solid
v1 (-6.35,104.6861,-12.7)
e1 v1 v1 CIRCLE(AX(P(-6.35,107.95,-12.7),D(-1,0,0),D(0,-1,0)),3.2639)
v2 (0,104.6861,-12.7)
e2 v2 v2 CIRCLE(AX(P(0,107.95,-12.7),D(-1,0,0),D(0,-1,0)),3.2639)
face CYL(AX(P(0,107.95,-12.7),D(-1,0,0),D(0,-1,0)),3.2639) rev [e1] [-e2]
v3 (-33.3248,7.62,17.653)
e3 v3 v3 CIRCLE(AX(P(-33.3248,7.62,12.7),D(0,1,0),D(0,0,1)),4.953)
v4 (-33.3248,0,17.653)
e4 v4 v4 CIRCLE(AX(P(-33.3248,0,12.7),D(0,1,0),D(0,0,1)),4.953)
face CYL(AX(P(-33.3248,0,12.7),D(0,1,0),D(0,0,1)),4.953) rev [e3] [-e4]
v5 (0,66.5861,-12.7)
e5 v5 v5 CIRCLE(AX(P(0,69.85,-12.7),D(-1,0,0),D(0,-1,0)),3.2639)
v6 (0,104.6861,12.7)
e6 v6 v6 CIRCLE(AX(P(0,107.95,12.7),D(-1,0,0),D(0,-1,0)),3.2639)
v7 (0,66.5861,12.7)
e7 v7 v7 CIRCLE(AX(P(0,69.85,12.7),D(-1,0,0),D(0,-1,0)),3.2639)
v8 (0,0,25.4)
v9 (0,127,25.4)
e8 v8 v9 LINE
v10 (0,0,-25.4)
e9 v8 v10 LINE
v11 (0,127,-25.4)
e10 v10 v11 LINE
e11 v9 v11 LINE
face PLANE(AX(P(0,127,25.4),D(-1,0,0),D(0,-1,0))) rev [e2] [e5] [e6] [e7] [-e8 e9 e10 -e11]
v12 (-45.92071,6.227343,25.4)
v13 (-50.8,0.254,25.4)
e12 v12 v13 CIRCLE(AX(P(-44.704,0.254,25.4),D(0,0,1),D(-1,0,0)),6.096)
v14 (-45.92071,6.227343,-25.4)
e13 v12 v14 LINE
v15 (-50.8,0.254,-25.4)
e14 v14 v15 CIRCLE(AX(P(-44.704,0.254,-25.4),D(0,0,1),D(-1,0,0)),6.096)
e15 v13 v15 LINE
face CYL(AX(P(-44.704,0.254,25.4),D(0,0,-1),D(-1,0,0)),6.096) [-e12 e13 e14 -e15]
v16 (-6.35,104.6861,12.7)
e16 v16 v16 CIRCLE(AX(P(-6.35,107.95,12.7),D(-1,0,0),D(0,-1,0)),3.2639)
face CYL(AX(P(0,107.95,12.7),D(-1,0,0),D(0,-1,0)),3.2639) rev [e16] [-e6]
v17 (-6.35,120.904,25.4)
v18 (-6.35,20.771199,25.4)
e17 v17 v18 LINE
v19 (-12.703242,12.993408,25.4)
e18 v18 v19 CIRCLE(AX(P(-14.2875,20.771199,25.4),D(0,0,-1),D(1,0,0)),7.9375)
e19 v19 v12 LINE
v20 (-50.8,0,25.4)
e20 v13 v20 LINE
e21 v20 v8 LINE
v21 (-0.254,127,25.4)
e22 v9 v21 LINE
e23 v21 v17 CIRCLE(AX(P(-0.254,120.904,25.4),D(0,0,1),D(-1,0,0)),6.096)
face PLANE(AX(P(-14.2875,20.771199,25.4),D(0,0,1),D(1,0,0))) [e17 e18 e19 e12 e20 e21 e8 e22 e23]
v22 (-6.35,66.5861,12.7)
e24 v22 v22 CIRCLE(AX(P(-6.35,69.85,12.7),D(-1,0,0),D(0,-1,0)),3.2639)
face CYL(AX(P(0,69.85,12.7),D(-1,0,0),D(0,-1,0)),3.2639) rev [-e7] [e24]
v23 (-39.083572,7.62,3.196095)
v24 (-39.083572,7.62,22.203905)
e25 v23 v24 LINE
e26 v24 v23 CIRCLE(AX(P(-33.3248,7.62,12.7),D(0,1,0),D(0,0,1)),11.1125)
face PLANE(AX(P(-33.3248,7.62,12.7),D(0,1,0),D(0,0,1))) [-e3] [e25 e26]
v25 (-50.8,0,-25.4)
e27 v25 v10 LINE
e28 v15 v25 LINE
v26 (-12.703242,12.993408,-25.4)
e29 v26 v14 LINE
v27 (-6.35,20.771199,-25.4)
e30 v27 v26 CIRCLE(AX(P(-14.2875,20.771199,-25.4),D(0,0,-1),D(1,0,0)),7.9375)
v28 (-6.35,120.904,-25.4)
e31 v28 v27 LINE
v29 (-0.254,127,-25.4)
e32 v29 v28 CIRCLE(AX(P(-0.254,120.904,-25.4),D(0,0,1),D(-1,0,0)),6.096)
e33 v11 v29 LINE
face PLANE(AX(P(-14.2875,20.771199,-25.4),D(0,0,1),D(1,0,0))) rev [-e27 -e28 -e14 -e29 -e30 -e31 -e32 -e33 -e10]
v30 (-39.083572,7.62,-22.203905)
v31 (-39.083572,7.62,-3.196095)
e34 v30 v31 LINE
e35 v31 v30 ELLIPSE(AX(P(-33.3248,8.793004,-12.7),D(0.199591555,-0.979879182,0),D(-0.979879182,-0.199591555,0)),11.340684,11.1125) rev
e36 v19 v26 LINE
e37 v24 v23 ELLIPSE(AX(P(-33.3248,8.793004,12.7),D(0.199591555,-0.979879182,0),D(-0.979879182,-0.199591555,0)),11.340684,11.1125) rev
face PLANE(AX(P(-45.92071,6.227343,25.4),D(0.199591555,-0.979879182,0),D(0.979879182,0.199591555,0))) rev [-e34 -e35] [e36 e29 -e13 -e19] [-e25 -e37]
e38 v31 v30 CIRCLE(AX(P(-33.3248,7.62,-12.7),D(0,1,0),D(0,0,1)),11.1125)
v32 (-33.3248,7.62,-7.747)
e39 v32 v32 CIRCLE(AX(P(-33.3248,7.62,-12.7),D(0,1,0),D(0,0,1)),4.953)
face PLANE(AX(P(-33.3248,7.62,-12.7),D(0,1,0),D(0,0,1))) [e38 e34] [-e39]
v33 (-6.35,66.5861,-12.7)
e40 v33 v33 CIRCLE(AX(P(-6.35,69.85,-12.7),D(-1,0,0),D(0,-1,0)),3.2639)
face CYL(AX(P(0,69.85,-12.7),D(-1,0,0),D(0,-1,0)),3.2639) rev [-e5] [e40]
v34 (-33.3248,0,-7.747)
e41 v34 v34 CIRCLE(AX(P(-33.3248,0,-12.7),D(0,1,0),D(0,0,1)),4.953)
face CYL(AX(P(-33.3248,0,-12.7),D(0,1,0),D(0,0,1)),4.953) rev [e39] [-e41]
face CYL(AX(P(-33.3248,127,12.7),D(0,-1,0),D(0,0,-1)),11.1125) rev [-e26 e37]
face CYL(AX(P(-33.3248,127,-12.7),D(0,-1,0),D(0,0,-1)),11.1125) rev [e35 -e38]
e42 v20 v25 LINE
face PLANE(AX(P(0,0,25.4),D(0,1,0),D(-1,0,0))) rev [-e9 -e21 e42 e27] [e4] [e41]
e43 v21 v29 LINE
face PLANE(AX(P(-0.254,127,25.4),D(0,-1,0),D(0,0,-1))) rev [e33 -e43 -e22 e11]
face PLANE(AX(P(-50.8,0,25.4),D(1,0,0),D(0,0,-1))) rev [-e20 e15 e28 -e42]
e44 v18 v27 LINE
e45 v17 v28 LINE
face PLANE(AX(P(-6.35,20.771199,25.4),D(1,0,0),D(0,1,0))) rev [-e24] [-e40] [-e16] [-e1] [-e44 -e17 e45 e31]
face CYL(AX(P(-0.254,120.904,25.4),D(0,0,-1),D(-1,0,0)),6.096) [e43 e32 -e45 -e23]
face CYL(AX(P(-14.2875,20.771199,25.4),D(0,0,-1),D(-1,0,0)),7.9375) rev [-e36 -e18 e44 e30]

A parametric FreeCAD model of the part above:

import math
import FreeCAD as App
import Part
import Sketcher

V = App.Vector
Q = App.Units.Quantity

doc = App.newDocument("Part")
body = doc.addObject("PartDesign::Body", "Body")

sketch1 = doc.addObject("Sketcher::SketchObject", "Sketch")
body.addObject(sketch1)
sketch1.AttachmentSupport = (doc.XY_Plane, [""])
sketch1.MapMode = "FlatFace"
sketch1.addGeometry(Part.LineSegment(V(0, 0, 0), V(0, 127, 0)), False)
sketch1.addGeometry(Part.LineSegment(V(0, 127, 0), V(-0.254, 127, 0)), False)
sketch1.addGeometry(Part.ArcOfCircle(Part.Circle(V(-0.254, 120.904, 0), V(0, 0, 1), 6.096), math.radians(90), math.radians(180)), False)
sketch1.addGeometry(Part.LineSegment(V(-6.35, 120.904, 0), V(-6.35, 20.771199, 0)), False)
sketch1.addGeometry(Part.ArcOfCircle(Part.Circle(V(-14.2875, 20.771199, 0), V(0, 0, 1), 7.9375), math.radians(-78.486925), math.radians(0)), False)
sketch1.addGeometry(Part.LineSegment(V(-12.703242, 12.993408, 0), V(-45.92071, 6.227343, 0)), False)
sketch1.addGeometry(Part.ArcOfCircle(Part.Circle(V(-44.704, 0.254, 0), V(0, 0, 1), 6.096), math.radians(101.513075), math.radians(180)), False)
sketch1.addGeometry(Part.LineSegment(V(-50.8, 0.254, 0), V(-50.8, 0, 0)), False)
sketch1.addGeometry(Part.LineSegment(V(-50.8, 0, 0), V(0, 0, 0)), False)
sketch1.addConstraint(Sketcher.Constraint("Coincident", 0, 2, 1, 1))
sketch1.addConstraint(Sketcher.Constraint("Tangent", 1, 2, 2, 1))
sketch1.addConstraint(Sketcher.Constraint("Tangent", 2, 2, 3, 1))
sketch1.addConstraint(Sketcher.Constraint("Tangent", 3, 2, 4, 2))
sketch1.addConstraint(Sketcher.Constraint("Tangent", 4, 1, 5, 1))
sketch1.addConstraint(Sketcher.Constraint("Tangent", 5, 2, 6, 1))
sketch1.addConstraint(Sketcher.Constraint("Tangent", 6, 2, 7, 1))
sketch1.addConstraint(Sketcher.Constraint("Coincident", 7, 2, 8, 1))
sketch1.addConstraint(Sketcher.Constraint("Coincident", 8, 2, 0, 1))
sketch1.addConstraint(Sketcher.Constraint("Vertical", 0))
sketch1.addConstraint(Sketcher.Constraint("Horizontal", 1))
sketch1.addConstraint(Sketcher.Constraint("Vertical", 3))
sketch1.addConstraint(Sketcher.Constraint("Vertical", 7))
sketch1.addConstraint(Sketcher.Constraint("Horizontal", 8))
sketch1.addConstraint(Sketcher.Constraint("Coincident", 8, 2, -1, 1))
sketch1.addConstraint(Sketcher.Constraint("Equal", 2, 6))
sketch1.addConstraint(Sketcher.Constraint("Equal", 1, 7))
sketch1.addConstraint(Sketcher.Constraint("DistanceX", 8, 1, 8, 2, Q("2 in")))
sketch1.addConstraint(Sketcher.Constraint("DistanceY", 0, 1, 0, 2, Q("5 in")))
sketch1.addConstraint(Sketcher.Constraint("Radius", 2, Q("0.24 in")))
sketch1.addConstraint(Sketcher.Constraint("Radius", 4, Q("0.3125 in")))
sketch1.addConstraint(Sketcher.Constraint("DistanceX", 1, 2, 1, 1, Q("0.01 in")))
sketch1.addConstraint(Sketcher.Constraint("DistanceY", 3, 2, 3, 1, Q("100.132801 mm")))
pad1 = doc.addObject("PartDesign::Pad", "Pad")
body.addObject(pad1)
pad1.Profile = sketch1
pad1.Length = Q("2 in")
pad1.Midplane = True

sketch2 = doc.addObject("Sketcher::SketchObject", "Sketch001")
body.addObject(sketch2)
sketch2.AttachmentSupport = (doc.XZ_Plane, [""])
sketch2.MapMode = "FlatFace"
sketch2.AttachmentOffset = App.Placement(V(0, 0, -0.3 * 25.4), App.Rotation())
sketch2.addGeometry(Part.Circle(V(-33.3248, -12.7, 0), V(0, 0, 1), 11.1125), False)
sketch2.addGeometry(Part.Circle(V(-33.3248, 12.7, 0), V(0, 0, 1), 11.1125), False)
sketch2.addConstraint(Sketcher.Constraint("Equal", 0, 1))
sketch2.addConstraint(Sketcher.Constraint("Symmetric", 0, 3, 1, 3, -1))
sketch2.addConstraint(Sketcher.Constraint("Diameter", 0, Q("0.875 in")))
sketch2.addConstraint(Sketcher.Constraint("DistanceY", 0, 3, 1, 3, Q("1 in")))
sketch2.addConstraint(Sketcher.Constraint("DistanceX", 0, 3, -1, 1, Q("1.312 in")))
pocket1 = doc.addObject("PartDesign::Pocket", "Pocket")
body.addObject(pocket1)
pocket1.Profile = sketch2
pocket1.Type = "ThroughAll"

sketch3 = doc.addObject("Sketcher::SketchObject", "Sketch002")
body.addObject(sketch3)
sketch3.AttachmentSupport = (doc.XZ_Plane, [""])
sketch3.MapMode = "FlatFace"
sketch3.AttachmentOffset = App.Placement(V(0, 0, -0.3 * 25.4), App.Rotation())
sketch3.addGeometry(Part.Circle(V(-33.3248, 12.7, 0), V(0, 0, 1), 4.953), False)
sketch3.addGeometry(Part.Circle(V(-33.3248, -12.7, 0), V(0, 0, 1), 4.953), False)
sketch3.addConstraint(Sketcher.Constraint("Equal", 0, 1))
sketch3.addConstraint(Sketcher.Constraint("Symmetric", 0, 3, 1, 3, -1))
sketch3.addConstraint(Sketcher.Constraint("Diameter", 0, Q("0.39 in")))
sketch3.addConstraint(Sketcher.Constraint("DistanceY", 1, 3, 0, 3, Q("1 in")))
sketch3.addConstraint(Sketcher.Constraint("DistanceX", 0, 3, -1, 1, Q("1.312 in")))
pocket2 = doc.addObject("PartDesign::Pocket", "Pocket001")
body.addObject(pocket2)
pocket2.Profile = sketch3
pocket2.Type = "ThroughAll"
pocket2.Reversed = True

sketch4 = doc.addObject("Sketcher::SketchObject", "Sketch003")
body.addObject(sketch4)
sketch4.AttachmentSupport = (doc.YZ_Plane, [""])
sketch4.MapMode = "FlatFace"
sketch4.AttachmentOffset = App.Placement(V(0, 0, -0.25 * 25.4), App.Rotation())
sketch4.addGeometry(Part.Circle(V(69.85, -12.7, 0), V(0, 0, 1), 3.2639), False)
sketch4.addGeometry(Part.Circle(V(107.95, -12.7, 0), V(0, 0, 1), 3.2639), False)
sketch4.addGeometry(Part.Circle(V(107.95, 12.7, 0), V(0, 0, 1), 3.2639), False)
sketch4.addGeometry(Part.Circle(V(69.85, 12.7, 0), V(0, 0, 1), 3.2639), False)
sketch4.addConstraint(Sketcher.Constraint("Equal", 0, 1))
sketch4.addConstraint(Sketcher.Constraint("Equal", 1, 2))
sketch4.addConstraint(Sketcher.Constraint("Equal", 2, 3))
sketch4.addConstraint(Sketcher.Constraint("Symmetric", 1, 3, 2, 3, -1))
sketch4.addConstraint(Sketcher.Constraint("Symmetric", 0, 3, 3, 3, -1))
sketch4.addConstraint(Sketcher.Constraint("Horizontal", 0, 3, 1, 3))
sketch4.addConstraint(Sketcher.Constraint("Diameter", 0, Q("0.257 in")))
sketch4.addConstraint(Sketcher.Constraint("DistanceY", 1, 3, 2, 3, Q("1 in")))
sketch4.addConstraint(Sketcher.Constraint("DistanceX", 0, 3, 1, 3, Q("1.5 in")))
sketch4.addConstraint(Sketcher.Constraint("DistanceX", -1, 1, 0, 3, Q("2.75 in")))
pocket3 = doc.addObject("PartDesign::Pocket", "Pocket002")
body.addObject(pocket3)
pocket3.Profile = sketch4
pocket3.Type = "ThroughAll"
pocket3.Reversed = True

doc.recompute()
